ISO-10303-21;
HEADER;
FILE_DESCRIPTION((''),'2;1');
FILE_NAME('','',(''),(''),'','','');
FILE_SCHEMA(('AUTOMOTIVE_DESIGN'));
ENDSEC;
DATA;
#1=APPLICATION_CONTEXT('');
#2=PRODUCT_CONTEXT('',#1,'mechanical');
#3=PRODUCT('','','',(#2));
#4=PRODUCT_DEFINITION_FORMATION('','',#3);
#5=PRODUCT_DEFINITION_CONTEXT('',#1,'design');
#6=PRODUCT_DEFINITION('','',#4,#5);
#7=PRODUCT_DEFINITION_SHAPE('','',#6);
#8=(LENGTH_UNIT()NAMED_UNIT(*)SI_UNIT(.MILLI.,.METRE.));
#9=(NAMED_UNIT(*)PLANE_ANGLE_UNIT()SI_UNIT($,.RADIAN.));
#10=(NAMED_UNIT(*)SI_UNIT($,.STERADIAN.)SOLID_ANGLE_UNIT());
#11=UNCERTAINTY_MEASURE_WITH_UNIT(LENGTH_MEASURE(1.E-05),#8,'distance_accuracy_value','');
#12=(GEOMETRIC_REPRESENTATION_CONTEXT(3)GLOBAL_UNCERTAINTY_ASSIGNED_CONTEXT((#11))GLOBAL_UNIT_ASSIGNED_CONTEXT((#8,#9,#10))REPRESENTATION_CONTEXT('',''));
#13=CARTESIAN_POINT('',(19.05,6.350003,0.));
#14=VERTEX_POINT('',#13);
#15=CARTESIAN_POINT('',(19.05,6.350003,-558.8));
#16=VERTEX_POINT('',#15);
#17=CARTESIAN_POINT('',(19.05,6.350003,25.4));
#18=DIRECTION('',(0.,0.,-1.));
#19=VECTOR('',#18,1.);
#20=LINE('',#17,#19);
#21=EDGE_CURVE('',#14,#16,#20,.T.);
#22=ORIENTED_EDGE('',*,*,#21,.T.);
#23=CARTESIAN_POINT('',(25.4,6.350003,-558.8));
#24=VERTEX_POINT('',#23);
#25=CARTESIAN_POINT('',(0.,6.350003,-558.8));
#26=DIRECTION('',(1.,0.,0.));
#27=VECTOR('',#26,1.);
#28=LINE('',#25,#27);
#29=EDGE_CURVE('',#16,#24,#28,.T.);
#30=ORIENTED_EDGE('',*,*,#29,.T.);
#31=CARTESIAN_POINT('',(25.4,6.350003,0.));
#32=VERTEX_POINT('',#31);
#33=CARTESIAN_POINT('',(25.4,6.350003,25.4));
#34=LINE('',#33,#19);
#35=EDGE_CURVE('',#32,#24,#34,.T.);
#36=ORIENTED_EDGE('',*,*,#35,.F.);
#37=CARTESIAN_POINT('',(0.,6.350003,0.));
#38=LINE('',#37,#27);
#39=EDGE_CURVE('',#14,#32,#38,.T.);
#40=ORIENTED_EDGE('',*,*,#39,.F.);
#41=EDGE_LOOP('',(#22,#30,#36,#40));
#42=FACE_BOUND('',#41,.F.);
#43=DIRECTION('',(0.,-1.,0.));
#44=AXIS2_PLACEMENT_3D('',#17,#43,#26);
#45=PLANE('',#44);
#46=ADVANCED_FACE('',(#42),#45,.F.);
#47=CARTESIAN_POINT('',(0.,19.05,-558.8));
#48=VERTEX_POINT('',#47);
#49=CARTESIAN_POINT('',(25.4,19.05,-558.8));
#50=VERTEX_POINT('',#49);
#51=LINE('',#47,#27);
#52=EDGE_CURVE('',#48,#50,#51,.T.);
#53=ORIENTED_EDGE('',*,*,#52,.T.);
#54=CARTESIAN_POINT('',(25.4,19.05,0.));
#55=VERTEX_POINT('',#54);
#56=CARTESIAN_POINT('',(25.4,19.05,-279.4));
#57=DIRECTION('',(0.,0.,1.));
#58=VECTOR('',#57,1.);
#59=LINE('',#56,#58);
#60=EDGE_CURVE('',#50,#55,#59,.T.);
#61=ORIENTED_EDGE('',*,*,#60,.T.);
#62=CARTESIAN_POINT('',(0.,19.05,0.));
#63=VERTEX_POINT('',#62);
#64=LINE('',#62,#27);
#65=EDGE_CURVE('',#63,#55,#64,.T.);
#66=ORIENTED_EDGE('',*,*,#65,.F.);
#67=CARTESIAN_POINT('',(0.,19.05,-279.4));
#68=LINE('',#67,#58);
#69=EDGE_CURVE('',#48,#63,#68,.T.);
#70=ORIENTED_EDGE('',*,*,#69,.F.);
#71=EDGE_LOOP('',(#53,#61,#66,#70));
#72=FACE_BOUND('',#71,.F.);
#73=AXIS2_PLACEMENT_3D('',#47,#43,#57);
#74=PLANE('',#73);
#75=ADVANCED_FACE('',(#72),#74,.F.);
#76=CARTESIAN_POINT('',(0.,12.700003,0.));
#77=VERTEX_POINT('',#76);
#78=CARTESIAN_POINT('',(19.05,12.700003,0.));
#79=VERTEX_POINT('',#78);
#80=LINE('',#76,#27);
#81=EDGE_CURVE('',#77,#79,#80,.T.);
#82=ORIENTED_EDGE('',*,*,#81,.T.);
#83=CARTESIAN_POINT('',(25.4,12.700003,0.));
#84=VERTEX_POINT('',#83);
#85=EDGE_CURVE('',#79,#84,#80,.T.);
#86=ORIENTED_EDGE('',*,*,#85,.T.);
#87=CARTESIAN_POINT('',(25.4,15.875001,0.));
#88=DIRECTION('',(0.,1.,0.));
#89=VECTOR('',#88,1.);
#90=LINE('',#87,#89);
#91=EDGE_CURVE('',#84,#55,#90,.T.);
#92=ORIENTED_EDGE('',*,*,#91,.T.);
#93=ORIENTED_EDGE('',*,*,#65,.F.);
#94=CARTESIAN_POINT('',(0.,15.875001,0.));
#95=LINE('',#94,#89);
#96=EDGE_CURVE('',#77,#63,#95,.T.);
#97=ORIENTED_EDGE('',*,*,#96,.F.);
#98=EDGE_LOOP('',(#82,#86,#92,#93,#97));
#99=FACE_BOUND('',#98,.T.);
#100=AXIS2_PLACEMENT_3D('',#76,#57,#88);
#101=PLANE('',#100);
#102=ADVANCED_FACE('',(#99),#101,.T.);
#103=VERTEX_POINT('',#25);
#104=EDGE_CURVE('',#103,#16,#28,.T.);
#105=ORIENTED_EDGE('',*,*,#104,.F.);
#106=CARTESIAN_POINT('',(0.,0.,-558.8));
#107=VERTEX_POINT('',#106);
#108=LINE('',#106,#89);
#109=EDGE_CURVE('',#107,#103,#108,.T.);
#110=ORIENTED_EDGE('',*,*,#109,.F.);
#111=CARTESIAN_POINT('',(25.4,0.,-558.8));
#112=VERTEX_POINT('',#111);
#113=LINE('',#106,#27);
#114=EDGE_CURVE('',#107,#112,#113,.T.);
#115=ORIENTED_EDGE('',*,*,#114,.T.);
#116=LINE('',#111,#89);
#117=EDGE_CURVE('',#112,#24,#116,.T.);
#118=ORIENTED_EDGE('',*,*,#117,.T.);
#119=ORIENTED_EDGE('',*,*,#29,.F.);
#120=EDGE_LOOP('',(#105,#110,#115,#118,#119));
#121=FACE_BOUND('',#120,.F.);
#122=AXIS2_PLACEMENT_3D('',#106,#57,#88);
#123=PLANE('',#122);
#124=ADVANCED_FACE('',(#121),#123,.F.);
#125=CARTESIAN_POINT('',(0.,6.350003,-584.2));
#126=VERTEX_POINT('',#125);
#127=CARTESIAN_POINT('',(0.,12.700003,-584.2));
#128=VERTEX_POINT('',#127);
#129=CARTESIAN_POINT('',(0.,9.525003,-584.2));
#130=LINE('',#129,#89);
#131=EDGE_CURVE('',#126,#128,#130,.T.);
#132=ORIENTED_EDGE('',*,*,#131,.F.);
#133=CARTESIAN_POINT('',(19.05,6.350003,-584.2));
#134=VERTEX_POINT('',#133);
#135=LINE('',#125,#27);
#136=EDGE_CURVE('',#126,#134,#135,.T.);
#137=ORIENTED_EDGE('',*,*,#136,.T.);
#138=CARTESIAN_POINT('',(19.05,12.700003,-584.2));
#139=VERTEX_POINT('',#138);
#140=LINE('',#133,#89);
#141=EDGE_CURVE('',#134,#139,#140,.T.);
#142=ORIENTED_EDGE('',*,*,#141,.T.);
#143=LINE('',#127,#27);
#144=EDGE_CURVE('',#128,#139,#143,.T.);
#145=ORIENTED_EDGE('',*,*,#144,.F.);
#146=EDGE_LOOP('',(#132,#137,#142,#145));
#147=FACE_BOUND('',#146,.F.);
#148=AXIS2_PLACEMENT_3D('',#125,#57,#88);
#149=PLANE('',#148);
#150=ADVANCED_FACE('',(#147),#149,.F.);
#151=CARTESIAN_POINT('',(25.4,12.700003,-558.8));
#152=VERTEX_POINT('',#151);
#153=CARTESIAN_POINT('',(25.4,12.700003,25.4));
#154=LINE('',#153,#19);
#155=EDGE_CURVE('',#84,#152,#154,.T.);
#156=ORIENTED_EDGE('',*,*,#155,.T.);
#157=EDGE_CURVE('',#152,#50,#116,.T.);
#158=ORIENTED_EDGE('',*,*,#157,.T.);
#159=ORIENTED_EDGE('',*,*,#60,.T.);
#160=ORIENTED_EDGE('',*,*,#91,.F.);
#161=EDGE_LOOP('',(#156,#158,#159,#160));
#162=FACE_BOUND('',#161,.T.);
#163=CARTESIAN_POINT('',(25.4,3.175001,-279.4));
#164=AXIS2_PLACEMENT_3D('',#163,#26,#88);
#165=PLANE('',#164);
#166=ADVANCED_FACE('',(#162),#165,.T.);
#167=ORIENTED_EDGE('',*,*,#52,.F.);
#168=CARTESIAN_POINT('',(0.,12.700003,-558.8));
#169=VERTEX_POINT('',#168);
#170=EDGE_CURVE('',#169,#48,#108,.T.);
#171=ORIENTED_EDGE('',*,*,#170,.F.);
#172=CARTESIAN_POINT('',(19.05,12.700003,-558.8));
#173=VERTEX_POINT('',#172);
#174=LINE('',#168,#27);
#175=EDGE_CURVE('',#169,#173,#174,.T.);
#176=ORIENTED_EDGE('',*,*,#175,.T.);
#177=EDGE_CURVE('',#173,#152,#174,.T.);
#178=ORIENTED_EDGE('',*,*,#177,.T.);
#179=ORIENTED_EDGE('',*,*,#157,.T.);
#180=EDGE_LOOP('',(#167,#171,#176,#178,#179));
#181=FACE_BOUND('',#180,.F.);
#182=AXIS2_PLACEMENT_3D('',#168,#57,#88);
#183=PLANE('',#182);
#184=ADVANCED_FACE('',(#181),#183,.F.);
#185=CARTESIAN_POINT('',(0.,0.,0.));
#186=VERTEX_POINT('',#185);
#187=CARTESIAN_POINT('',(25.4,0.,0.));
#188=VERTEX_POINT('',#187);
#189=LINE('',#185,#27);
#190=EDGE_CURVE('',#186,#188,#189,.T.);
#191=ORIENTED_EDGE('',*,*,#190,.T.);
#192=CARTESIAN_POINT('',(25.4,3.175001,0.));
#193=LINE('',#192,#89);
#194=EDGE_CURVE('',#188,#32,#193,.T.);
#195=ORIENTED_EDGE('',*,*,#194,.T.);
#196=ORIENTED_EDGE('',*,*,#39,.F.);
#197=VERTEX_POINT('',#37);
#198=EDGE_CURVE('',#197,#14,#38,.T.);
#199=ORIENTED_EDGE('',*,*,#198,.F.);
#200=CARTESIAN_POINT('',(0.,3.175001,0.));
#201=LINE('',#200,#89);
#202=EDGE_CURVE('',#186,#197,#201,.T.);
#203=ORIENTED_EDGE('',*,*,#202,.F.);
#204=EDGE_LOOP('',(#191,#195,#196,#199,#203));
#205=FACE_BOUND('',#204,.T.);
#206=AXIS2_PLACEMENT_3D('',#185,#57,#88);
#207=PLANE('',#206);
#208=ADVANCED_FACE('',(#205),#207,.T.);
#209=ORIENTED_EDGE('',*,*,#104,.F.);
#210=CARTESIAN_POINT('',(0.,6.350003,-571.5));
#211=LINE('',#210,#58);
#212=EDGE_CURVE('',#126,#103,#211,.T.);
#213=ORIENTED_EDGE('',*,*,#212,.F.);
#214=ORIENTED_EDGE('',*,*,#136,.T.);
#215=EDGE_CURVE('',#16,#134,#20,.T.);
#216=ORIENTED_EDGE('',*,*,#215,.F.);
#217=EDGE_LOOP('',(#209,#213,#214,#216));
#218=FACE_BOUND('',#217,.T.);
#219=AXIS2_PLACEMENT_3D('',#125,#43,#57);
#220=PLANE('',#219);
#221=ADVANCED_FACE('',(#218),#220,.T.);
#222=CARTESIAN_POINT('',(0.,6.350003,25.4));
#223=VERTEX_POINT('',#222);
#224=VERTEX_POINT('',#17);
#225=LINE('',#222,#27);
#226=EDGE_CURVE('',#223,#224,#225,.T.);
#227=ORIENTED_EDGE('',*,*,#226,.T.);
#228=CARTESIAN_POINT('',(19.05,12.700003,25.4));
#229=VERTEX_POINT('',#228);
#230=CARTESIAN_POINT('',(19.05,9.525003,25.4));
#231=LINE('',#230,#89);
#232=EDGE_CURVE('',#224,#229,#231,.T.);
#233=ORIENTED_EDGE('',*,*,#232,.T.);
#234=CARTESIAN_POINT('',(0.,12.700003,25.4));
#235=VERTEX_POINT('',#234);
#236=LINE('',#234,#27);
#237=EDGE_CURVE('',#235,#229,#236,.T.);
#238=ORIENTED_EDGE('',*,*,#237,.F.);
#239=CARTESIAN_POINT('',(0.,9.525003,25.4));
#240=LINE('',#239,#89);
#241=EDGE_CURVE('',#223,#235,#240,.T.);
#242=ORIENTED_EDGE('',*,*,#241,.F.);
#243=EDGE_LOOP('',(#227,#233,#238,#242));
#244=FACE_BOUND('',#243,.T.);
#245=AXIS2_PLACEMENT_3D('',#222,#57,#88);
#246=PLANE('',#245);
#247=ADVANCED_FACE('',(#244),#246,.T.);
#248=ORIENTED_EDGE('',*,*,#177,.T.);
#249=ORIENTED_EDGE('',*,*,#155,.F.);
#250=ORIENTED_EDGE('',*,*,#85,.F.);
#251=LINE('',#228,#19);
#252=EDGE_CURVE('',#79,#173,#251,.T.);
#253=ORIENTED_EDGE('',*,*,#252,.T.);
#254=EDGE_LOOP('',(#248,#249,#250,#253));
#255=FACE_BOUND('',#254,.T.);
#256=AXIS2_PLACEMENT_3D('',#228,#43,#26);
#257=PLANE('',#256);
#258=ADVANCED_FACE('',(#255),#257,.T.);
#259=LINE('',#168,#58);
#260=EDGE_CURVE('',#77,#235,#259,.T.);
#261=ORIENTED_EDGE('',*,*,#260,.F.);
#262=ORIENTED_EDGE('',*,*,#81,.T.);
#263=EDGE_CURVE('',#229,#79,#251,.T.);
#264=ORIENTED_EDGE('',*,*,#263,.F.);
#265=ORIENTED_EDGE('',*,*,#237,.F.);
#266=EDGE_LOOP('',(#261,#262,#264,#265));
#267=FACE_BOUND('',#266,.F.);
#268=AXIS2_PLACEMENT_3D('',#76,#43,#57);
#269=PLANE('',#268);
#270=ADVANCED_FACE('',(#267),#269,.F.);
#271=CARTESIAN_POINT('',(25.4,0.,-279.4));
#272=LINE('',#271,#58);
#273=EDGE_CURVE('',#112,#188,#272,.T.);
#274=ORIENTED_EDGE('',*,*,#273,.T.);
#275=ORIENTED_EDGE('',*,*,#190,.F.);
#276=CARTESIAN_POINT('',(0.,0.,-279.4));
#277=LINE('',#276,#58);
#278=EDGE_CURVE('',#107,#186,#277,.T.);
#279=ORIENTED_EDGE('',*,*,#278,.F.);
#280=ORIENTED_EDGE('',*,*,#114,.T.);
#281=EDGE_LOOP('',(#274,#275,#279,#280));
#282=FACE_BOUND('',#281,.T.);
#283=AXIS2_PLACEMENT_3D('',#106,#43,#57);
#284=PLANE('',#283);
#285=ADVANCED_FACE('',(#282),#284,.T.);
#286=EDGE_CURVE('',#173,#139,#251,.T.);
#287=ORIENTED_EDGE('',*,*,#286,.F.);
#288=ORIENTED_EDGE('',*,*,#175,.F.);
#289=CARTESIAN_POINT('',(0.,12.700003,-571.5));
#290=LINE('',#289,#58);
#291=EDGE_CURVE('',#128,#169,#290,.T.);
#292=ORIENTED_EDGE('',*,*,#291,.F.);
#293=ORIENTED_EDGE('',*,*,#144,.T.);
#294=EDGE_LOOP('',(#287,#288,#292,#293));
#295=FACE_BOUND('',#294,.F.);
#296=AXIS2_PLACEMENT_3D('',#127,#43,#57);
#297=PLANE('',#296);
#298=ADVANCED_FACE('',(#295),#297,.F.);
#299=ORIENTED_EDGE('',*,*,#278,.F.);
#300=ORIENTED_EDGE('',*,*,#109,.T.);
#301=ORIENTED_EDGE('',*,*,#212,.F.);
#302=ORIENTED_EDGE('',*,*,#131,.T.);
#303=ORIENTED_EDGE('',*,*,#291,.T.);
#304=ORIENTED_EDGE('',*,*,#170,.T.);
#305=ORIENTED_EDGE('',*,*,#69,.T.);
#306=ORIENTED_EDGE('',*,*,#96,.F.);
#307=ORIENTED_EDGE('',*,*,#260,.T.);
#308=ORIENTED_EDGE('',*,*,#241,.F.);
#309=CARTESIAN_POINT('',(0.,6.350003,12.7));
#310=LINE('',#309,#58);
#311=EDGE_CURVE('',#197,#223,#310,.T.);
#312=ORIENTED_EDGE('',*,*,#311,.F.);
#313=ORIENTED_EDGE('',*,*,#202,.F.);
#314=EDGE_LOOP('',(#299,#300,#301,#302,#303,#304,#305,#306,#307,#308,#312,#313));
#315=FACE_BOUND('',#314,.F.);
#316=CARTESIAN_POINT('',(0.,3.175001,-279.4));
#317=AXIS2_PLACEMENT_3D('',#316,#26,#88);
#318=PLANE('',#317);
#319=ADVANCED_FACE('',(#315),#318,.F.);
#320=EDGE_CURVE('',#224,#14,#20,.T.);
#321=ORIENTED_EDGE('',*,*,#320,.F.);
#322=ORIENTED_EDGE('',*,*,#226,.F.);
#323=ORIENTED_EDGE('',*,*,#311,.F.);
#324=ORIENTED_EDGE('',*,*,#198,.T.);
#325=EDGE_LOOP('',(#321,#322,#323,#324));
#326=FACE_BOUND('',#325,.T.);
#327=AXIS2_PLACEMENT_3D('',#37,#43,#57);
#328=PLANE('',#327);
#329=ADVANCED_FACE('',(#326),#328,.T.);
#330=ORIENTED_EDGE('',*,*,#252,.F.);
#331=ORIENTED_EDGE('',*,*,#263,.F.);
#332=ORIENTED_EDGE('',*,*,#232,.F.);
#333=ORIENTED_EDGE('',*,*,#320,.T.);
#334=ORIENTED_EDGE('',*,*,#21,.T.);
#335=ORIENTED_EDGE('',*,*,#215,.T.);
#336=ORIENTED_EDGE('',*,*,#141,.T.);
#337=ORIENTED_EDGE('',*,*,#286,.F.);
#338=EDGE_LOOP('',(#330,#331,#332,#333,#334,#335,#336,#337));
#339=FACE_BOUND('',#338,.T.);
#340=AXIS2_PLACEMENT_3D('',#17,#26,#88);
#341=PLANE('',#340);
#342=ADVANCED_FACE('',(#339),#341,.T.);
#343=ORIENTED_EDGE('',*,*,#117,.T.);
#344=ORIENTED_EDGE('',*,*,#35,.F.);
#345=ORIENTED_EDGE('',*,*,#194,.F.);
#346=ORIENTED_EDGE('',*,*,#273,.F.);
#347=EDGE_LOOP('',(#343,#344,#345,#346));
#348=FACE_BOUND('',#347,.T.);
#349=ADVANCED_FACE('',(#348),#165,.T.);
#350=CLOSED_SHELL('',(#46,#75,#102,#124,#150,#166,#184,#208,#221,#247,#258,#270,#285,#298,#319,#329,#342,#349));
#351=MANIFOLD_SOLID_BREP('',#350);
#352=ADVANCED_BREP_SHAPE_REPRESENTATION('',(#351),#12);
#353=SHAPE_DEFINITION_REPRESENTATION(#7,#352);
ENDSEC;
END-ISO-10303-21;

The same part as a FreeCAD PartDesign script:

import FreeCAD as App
import Part
import Sketcher
from FreeCAD import Vector
Q = App.Units.Quantity

doc = App.newDocument("Part")
body = doc.addObject("PartDesign::Body", "Body")

# Sketch on YZ plane
sketch1 = body.newObject("Sketcher::SketchObject", "Sketch")
sketch1.AttachmentSupport = (doc.getObject("YZ_Plane"), [""])
sketch1.MapMode = "FlatFace"
sketch1.addGeometry([
    Part.LineSegment(Vector(0, 0, 0), Vector(0, -559, 0)),  # 0
    Part.LineSegment(Vector(0, -559, 0), Vector(6, -559, 0)),  # 1
    Part.LineSegment(Vector(6, -559, 0), Vector(6, -584, 0)),  # 2
    Part.LineSegment(Vector(6, -584, 0), Vector(13, -584, 0)),  # 3
    Part.LineSegment(Vector(13, -584, 0), Vector(13, -559, 0)),  # 4
    Part.LineSegment(Vector(13, -559, 0), Vector(19, -559, 0)),  # 5
    Part.LineSegment(Vector(19, -559, 0), Vector(19, 0, 0)),  # 6
    Part.LineSegment(Vector(19, 0, 0), Vector(13, 0, 0)),  # 7
    Part.LineSegment(Vector(13, 0, 0), Vector(13, 25, 0)),  # 8
    Part.LineSegment(Vector(13, 25, 0), Vector(6, 25, 0)),  # 9
    Part.LineSegment(Vector(6, 25, 0), Vector(6, 0, 0)),  # 10
    Part.LineSegment(Vector(6, 0, 0), Vector(0, 0, 0)),  # 11
], False)
sketch1.addConstraint([
    Sketcher.Constraint("Coincident", 0, 2, 1, 1),
    Sketcher.Constraint("Coincident", 1, 2, 2, 1),
    Sketcher.Constraint("Coincident", 2, 2, 3, 1),
    Sketcher.Constraint("Coincident", 3, 2, 4, 1),
    Sketcher.Constraint("Coincident", 4, 2, 5, 1),
    Sketcher.Constraint("Coincident", 5, 2, 6, 1),
    Sketcher.Constraint("Coincident", 6, 2, 7, 1),
    Sketcher.Constraint("Coincident", 7, 2, 8, 1),
    Sketcher.Constraint("Coincident", 8, 2, 9, 1),
    Sketcher.Constraint("Coincident", 9, 2, 10, 1),
    Sketcher.Constraint("Coincident", 10, 2, 11, 1),
    Sketcher.Constraint("Coincident", 11, 2, 0, 1),
    Sketcher.Constraint("Vertical", 0),
    Sketcher.Constraint("Horizontal", 1),
    Sketcher.Constraint("Vertical", 2),
    Sketcher.Constraint("Horizontal", 3),
    Sketcher.Constraint("Vertical", 4),
    Sketcher.Constraint("Horizontal", 5),
    Sketcher.Constraint("Vertical", 6),
    Sketcher.Constraint("Horizontal", 7),
    Sketcher.Constraint("Vertical", 8),
    Sketcher.Constraint("Horizontal", 9),
    Sketcher.Constraint("Vertical", 10),
    Sketcher.Constraint("Horizontal", 11),
    Sketcher.Constraint("Coincident", 11, 2, -1, 1),
    Sketcher.Constraint("PointOnObject", 6, 2, -1),
    Sketcher.Constraint("Horizontal", 1, 2, 4, 2),
    Sketcher.Constraint("Vertical", 4, 2, 7, 2),
    Sketcher.Constraint("Vertical", 2, 2, 9, 2),
    Sketcher.Constraint("Equal", 4, 8),
    Sketcher.Constraint("DistanceY", 0, 2, 0, 1, Q("22 in")),
    Sketcher.Constraint("DistanceY", 2, 2, 2, 1, Q("1 in")),
    Sketcher.Constraint("DistanceX", 1, 1, 1, 2, Q("0.2500001 in")),
    Sketcher.Constraint("DistanceX", 3, 1, 3, 2, Q("0.25 in")),
    Sketcher.Constraint("DistanceX", 5, 1, 5, 2, Q("0.2499999 in")),
])
pad1 = body.newObject("PartDesign::Pad", "Pad")
pad1.Profile = sketch1
pad1.Length = Q("1 in")

# Sketch on XY plane
sketch2 = body.newObject("Sketcher::SketchObject", "Sketch001")
sketch2.AttachmentSupport = (doc.getObject("XY_Plane"), [""])
sketch2.MapMode = "FlatFace"
sketch2.AttachmentOffset = App.Placement(Vector(0, 0, 1 * 25.4), App.Rotation())
sketch2.addGeometry([
    Part.LineSegment(Vector(19, 13, 0), Vector(19, 6, 0)),
    Part.LineSegment(Vector(19, 6, 0), Vector(25, 6, 0)),
    Part.LineSegment(Vector(25, 6, 0), Vector(25, 13, 0)),
    Part.LineSegment(Vector(25, 13, 0), Vector(19, 13, 0)),
], False)
sketch2.addConstraint([
    Sketcher.Constraint("Coincident", 0, 2, 1, 1),
    Sketcher.Constraint("Coincident", 1, 2, 2, 1),
    Sketcher.Constraint("Coincident", 2, 2, 3, 1),
    Sketcher.Constraint("Coincident", 3, 2, 0, 1),
    Sketcher.Constraint("Vertical", 0),
    Sketcher.Constraint("Horizontal", 1),
    Sketcher.Constraint("Vertical", 2),
    Sketcher.Constraint("Horizontal", 3),
    Sketcher.Constraint("Equal", 3, 0),
    Sketcher.Constraint("DistanceX", -1, 1, 1, 2, Q("1 in")),
    Sketcher.Constraint("DistanceX", 1, 1, 1, 2, Q("0.25 in")),
    Sketcher.Constraint("DistanceY", -1, 1, 2, 2, Q("0.5000001 in")),
])
pocket1 = body.newObject("PartDesign::Pocket", "Pocket")
pocket1.Profile = sketch2
pocket1.Type = "ThroughAll"

doc.recompute()
